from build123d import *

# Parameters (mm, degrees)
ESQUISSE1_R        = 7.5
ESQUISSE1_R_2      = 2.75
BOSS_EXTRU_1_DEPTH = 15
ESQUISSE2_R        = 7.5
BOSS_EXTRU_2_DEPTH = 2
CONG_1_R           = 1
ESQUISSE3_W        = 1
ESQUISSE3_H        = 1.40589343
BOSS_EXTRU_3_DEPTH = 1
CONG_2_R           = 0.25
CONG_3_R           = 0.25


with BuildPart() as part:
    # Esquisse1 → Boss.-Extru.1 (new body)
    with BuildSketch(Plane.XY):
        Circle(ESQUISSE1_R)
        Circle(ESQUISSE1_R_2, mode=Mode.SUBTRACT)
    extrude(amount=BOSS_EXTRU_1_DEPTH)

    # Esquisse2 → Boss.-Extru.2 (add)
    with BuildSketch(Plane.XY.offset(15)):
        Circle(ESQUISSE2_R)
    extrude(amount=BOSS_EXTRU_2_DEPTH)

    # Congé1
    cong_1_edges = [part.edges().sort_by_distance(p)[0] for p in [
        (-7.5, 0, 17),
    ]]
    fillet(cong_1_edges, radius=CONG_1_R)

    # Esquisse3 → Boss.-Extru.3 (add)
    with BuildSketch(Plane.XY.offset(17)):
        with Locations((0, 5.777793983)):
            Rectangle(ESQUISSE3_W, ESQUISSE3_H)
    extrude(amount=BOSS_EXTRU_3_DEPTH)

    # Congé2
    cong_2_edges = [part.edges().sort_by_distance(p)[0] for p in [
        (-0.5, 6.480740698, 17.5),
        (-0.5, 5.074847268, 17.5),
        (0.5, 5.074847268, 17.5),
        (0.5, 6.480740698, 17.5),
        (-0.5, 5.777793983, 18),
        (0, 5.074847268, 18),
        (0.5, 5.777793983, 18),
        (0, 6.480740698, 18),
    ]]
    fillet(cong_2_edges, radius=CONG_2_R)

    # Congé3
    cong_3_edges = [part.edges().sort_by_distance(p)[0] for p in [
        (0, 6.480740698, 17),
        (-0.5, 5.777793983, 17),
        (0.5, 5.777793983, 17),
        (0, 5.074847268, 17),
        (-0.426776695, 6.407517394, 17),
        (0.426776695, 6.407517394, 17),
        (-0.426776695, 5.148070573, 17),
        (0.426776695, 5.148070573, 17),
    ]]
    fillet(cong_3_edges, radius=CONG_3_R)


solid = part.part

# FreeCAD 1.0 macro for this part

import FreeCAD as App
import Part
import Sketcher

V = App.Vector


def edges_at(feature, points):
    """Names of the edges that pass closest to the given points."""
    edges = feature.Shape.Edges
    near = lambda p: min(range(len(edges)), key=lambda i: edges[i].distToShape(Part.Vertex(*p))[0])
    return sorted({f"Edge{near(p) + 1}" for p in points})


def add_polygon(sketch, points):
    """Adds a closed chain of lines whose ends are joined by coincident constraints."""
    first, n = sketch.GeometryCount, len(points)
    for a, b in zip(points, points[1:] + points[:1]):
        sketch.addGeometry(Part.LineSegment(App.Vector(*a, 0), App.Vector(*b, 0)), False)
    for i in range(n):
        sketch.addConstraint(Sketcher.Constraint("Coincident", first + i, 2, first + (i + 1) % n, 1))

doc = App.newDocument("Part")
body = doc.addObject("PartDesign::Body", "Body")

sketch1 = body.newObject("Sketcher::SketchObject", "Sketch")
sketch1.AttachmentSupport = (doc.getObject("XY_Plane"), [""])
sketch1.MapMode = "FlatFace"
sketch1.addGeometry(Part.Circle(V(0, 0, 0), V(0, 0, 1), 7.5), False)
sketch1.addGeometry(Part.Circle(V(0, 0, 0), V(0, 0, 1), 2.8), False)
sketch1.addConstraint(Sketcher.Constraint("Coincident", 0, 3, -1, 1))
sketch1.addConstraint(Sketcher.Constraint("Coincident", 1, 3, -1, 1))
sketch1.addConstraint(Sketcher.Constraint("Diameter", 0, 15.0))
sketch1.addConstraint(Sketcher.Constraint("Diameter", 1, 5.5))
pad1 = body.newObject("PartDesign::Pad", "Pad")
pad1.Profile = sketch1
pad1.Length = 15

sketch2 = body.newObject("Sketcher::SketchObject", "Sketch001")
sketch2.AttachmentSupport = (doc.getObject("XY_Plane"), [""])
sketch2.MapMode = "FlatFace"
sketch2.AttachmentOffset = App.Placement(V(0, 0, 15), App.Rotation())
sketch2.addGeometry(Part.Circle(V(0, 0, 0), V(0, 0, 1), 8), False)
sketch2.addConstraint(Sketcher.Constraint("Coincident", 0, 3, -1, 1))
sketch2.addConstraint(Sketcher.Constraint("Diameter", 0, 15.0))
pad2 = body.newObject("PartDesign::Pad", "Pad001")
pad2.Profile = sketch2
pad2.Length = 2
doc.recompute()

fillet = body.newObject("PartDesign::Fillet", "Fillet")
fillet.Base = (pad2, edges_at(pad2, [(-7.5, 0, 17)]))
fillet.Radius = 1

sketch3 = body.newObject("Sketcher::SketchObject", "Sketch002")
sketch3.AttachmentSupport = (doc.getObject("XY_Plane"), [""])
sketch3.MapMode = "FlatFace"
sketch3.AttachmentOffset = App.Placement(V(0, 0, 17), App.Rotation())
add_polygon(sketch3, [(-0.5, 6.5), (-0.5, 5.1), (0.5, 5.1), (0.5, 6.5)])
sketch3.addConstraint(Sketcher.Constraint("Vertical", 0))
sketch3.addConstraint(Sketcher.Constraint("Horizontal", 1))
sketch3.addConstraint(Sketcher.Constraint("Vertical", 2))
sketch3.addConstraint(Sketcher.Constraint("Horizontal", 3))
sketch3.addConstraint(Sketcher.Constraint("DistanceX", 1, 1, 1, 2, 1.0))
sketch3.addConstraint(Sketcher.Constraint("DistanceX", 0, 2, -1, 1, 0.5))
sketch3.addConstraint(Sketcher.Constraint("DistanceY", 0, 2, 0, 1, 1.405893))
sketch3.addConstraint(Sketcher.Constraint("DistanceY", -1, 1, 2, 2, 6.480741))
pad3 = body.newObject("PartDesign::Pad", "Pad002")
pad3.Profile = sketch3
pad3.Length = 1
doc.recompute()

fillet2 = body.newObject("PartDesign::Fillet", "Fillet001")
fillet2.Base = (pad3, edges_at(pad3, [
    (-0.5, 6.481, 17.5),
    (-0.5, 5.075, 17.5),
    (0.5, 5.075, 17.5),
    (0.5, 6.481, 17.5),
    (-0.5, 5.778, 18),
    (0, 5.075, 18),
    (0.5, 5.778, 18),
    (0, 6.481, 18),
]))
fillet2.Radius = 0.25
doc.recompute()

fillet3 = body.newObject("PartDesign::Fillet", "Fillet002")
fillet3.Base = (fillet2, edges_at(fillet2, [
    (0, 6.481, 17),
    (-0.5, 5.778, 17),
    (0.5, 5.778, 17),
    (0, 5.075, 17),
    (-0.427, 6.408, 17),
    (0.427, 6.408, 17),
    (-0.427, 5.148, 17),
    (0.427, 5.148, 17),
]))
fillet3.Radius = 0.25

doc.recompute()
